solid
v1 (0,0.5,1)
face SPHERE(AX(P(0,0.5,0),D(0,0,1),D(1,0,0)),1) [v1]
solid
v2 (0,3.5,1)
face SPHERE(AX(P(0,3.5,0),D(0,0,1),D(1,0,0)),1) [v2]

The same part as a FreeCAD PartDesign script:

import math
import FreeCAD as App
import Part
import Sketcher
from FreeCAD import Vector

doc = App.newDocument("Part")
body = doc.addObject("PartDesign::Body", "Body")

sketch1 = body.newObject("Sketcher::SketchObject", "Sketch")
sketch1.AttachmentSupport = (doc.getObject("XZ_Plane"), [""])
sketch1.MapMode = "FlatFace"
sketch1.AttachmentOffset = App.Placement(Vector(0, 0, -0.5), App.Rotation())
sketch1.addGeometry([
    Part.ArcOfCircle(Part.Circle(Vector(0, 0, 0), Vector(0, 0, 1), 1), math.radians(-90), math.radians(90)),
    Part.LineSegment(Vector(0, 1, 0), Vector(0, -1, 0)),
], False)
sketch1.addConstraint([
    Sketcher.Constraint("Coincident", 0, 1, 1, 2),
    Sketcher.Constraint("Coincident", 1, 1, 0, 2),
    Sketcher.Constraint("Vertical", 1),
    Sketcher.Constraint("Coincident", 0, 3, -1, 1),
    Sketcher.Constraint("PointOnObject", 0, 1, -2),
    Sketcher.Constraint("Radius", 0, 1.0),
])
revolution = body.newObject("PartDesign::Revolution", "Revolution")
revolution.Profile = sketch1
revolution.ReferenceAxis = (sketch1, ["V_Axis"])
revolution.Angle = 360
body2 = doc.addObject("PartDesign::Body", "Body001")

sketch2 = body2.newObject("Sketcher::SketchObject", "Sketch001")
sketch2.AttachmentSupport = (doc.getObject("XZ_Plane001"), [""])
sketch2.MapMode = "FlatFace"
sketch2.AttachmentOffset = App.Placement(Vector(0, 0, -3.5), App.Rotation())
sketch2.addGeometry([
    Part.ArcOfCircle(Part.Circle(Vector(0, 0, 0), Vector(0, 0, 1), 1), math.radians(-90), math.radians(90)),
    Part.LineSegment(Vector(0, 1, 0), Vector(0, -1, 0)),
], False)
sketch2.addConstraint([
    Sketcher.Constraint("Coincident", 0, 1, 1, 2),
    Sketcher.Constraint("Coincident", 1, 1, 0, 2),
    Sketcher.Constraint("Vertical", 1),
    Sketcher.Constraint("Coincident", 0, 3, -1, 1),
    Sketcher.Constraint("PointOnObject", 0, 1, -2),
    Sketcher.Constraint("Radius", 0, 1.0),
])
revolution2 = body2.newObject("PartDesign::Revolution", "Revolution001")
revolution2.Profile = sketch2
revolution2.ReferenceAxis = (sketch2, ["V_Axis"])
revolution2.Angle = 360

doc.recompute()
